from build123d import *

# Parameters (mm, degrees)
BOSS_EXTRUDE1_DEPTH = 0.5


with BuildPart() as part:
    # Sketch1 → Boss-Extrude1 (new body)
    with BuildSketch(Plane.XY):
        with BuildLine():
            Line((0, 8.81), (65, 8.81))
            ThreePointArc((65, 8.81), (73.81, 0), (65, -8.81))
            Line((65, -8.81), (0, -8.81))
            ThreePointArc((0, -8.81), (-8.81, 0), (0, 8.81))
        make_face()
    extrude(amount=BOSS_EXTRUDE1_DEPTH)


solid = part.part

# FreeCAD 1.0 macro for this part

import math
import FreeCAD as App
import Part
import Sketcher

V = App.Vector

doc = App.newDocument("Part")
params = doc.addObject("Spreadsheet::Sheet", "Params")
for row, (alias, value) in enumerate([
    ("sketch1_width", "65 mm"),
    ("sketch1_radius", "8.81 mm"),
    ("pad1_length", "0.5 mm"),
], start=1):
    params.set(f"A{row}", alias)
    params.set(f"B{row}", "=" + value)
    params.setAlias(f"B{row}", alias)

body = doc.addObject("PartDesign::Body", "Body")

# Sketch on XY plane
sketch1 = body.newObject("Sketcher::SketchObject", "Sketch")
sketch1.AttachmentSupport = (doc.getObject("XY_Plane"), [""])
sketch1.MapMode = "FlatFace"
sketch1.addGeometry([
    Part.LineSegment(V(65, 9, 0), V(0, 9, 0)),
    Part.ArcOfCircle(Part.Circle(V(0, 0, 0), V(0, 0, 1), 9), math.radians(90), math.radians(270)),
    Part.LineSegment(V(0, -9, 0), V(65, -9, 0)),
    Part.ArcOfCircle(Part.Circle(V(65, 0, 0), V(0, 0, 1), 9), math.radians(-90), math.radians(90)),
], False)
sketch1.addConstraint([
    Sketcher.Constraint("Tangent", 0, 2, 1, 1),
    Sketcher.Constraint("Tangent", 1, 2, 2, 1),
    Sketcher.Constraint("Tangent", 2, 2, 3, 1),
    Sketcher.Constraint("Tangent", 3, 2, 0, 1),
    Sketcher.Constraint("Horizontal", 0),
    Sketcher.Constraint("Horizontal", 2),
    Sketcher.Constraint("Coincident", 1, 3, -1, 1),
    Sketcher.Constraint("DistanceX", 0, 2, 0, 1, 65.0),
    Sketcher.Constraint("Radius", 1, 8.81),
])
sketch1.setExpression("Constraints[7]", "Params.sketch1_width")
sketch1.setExpression("Constraints[8]", "Params.sketch1_radius")
pad1 = body.newObject("PartDesign::Pad", "Pad")
pad1.Profile = sketch1
pad1.setExpression("Length", "Params.pad1_length")

doc.recompute()
